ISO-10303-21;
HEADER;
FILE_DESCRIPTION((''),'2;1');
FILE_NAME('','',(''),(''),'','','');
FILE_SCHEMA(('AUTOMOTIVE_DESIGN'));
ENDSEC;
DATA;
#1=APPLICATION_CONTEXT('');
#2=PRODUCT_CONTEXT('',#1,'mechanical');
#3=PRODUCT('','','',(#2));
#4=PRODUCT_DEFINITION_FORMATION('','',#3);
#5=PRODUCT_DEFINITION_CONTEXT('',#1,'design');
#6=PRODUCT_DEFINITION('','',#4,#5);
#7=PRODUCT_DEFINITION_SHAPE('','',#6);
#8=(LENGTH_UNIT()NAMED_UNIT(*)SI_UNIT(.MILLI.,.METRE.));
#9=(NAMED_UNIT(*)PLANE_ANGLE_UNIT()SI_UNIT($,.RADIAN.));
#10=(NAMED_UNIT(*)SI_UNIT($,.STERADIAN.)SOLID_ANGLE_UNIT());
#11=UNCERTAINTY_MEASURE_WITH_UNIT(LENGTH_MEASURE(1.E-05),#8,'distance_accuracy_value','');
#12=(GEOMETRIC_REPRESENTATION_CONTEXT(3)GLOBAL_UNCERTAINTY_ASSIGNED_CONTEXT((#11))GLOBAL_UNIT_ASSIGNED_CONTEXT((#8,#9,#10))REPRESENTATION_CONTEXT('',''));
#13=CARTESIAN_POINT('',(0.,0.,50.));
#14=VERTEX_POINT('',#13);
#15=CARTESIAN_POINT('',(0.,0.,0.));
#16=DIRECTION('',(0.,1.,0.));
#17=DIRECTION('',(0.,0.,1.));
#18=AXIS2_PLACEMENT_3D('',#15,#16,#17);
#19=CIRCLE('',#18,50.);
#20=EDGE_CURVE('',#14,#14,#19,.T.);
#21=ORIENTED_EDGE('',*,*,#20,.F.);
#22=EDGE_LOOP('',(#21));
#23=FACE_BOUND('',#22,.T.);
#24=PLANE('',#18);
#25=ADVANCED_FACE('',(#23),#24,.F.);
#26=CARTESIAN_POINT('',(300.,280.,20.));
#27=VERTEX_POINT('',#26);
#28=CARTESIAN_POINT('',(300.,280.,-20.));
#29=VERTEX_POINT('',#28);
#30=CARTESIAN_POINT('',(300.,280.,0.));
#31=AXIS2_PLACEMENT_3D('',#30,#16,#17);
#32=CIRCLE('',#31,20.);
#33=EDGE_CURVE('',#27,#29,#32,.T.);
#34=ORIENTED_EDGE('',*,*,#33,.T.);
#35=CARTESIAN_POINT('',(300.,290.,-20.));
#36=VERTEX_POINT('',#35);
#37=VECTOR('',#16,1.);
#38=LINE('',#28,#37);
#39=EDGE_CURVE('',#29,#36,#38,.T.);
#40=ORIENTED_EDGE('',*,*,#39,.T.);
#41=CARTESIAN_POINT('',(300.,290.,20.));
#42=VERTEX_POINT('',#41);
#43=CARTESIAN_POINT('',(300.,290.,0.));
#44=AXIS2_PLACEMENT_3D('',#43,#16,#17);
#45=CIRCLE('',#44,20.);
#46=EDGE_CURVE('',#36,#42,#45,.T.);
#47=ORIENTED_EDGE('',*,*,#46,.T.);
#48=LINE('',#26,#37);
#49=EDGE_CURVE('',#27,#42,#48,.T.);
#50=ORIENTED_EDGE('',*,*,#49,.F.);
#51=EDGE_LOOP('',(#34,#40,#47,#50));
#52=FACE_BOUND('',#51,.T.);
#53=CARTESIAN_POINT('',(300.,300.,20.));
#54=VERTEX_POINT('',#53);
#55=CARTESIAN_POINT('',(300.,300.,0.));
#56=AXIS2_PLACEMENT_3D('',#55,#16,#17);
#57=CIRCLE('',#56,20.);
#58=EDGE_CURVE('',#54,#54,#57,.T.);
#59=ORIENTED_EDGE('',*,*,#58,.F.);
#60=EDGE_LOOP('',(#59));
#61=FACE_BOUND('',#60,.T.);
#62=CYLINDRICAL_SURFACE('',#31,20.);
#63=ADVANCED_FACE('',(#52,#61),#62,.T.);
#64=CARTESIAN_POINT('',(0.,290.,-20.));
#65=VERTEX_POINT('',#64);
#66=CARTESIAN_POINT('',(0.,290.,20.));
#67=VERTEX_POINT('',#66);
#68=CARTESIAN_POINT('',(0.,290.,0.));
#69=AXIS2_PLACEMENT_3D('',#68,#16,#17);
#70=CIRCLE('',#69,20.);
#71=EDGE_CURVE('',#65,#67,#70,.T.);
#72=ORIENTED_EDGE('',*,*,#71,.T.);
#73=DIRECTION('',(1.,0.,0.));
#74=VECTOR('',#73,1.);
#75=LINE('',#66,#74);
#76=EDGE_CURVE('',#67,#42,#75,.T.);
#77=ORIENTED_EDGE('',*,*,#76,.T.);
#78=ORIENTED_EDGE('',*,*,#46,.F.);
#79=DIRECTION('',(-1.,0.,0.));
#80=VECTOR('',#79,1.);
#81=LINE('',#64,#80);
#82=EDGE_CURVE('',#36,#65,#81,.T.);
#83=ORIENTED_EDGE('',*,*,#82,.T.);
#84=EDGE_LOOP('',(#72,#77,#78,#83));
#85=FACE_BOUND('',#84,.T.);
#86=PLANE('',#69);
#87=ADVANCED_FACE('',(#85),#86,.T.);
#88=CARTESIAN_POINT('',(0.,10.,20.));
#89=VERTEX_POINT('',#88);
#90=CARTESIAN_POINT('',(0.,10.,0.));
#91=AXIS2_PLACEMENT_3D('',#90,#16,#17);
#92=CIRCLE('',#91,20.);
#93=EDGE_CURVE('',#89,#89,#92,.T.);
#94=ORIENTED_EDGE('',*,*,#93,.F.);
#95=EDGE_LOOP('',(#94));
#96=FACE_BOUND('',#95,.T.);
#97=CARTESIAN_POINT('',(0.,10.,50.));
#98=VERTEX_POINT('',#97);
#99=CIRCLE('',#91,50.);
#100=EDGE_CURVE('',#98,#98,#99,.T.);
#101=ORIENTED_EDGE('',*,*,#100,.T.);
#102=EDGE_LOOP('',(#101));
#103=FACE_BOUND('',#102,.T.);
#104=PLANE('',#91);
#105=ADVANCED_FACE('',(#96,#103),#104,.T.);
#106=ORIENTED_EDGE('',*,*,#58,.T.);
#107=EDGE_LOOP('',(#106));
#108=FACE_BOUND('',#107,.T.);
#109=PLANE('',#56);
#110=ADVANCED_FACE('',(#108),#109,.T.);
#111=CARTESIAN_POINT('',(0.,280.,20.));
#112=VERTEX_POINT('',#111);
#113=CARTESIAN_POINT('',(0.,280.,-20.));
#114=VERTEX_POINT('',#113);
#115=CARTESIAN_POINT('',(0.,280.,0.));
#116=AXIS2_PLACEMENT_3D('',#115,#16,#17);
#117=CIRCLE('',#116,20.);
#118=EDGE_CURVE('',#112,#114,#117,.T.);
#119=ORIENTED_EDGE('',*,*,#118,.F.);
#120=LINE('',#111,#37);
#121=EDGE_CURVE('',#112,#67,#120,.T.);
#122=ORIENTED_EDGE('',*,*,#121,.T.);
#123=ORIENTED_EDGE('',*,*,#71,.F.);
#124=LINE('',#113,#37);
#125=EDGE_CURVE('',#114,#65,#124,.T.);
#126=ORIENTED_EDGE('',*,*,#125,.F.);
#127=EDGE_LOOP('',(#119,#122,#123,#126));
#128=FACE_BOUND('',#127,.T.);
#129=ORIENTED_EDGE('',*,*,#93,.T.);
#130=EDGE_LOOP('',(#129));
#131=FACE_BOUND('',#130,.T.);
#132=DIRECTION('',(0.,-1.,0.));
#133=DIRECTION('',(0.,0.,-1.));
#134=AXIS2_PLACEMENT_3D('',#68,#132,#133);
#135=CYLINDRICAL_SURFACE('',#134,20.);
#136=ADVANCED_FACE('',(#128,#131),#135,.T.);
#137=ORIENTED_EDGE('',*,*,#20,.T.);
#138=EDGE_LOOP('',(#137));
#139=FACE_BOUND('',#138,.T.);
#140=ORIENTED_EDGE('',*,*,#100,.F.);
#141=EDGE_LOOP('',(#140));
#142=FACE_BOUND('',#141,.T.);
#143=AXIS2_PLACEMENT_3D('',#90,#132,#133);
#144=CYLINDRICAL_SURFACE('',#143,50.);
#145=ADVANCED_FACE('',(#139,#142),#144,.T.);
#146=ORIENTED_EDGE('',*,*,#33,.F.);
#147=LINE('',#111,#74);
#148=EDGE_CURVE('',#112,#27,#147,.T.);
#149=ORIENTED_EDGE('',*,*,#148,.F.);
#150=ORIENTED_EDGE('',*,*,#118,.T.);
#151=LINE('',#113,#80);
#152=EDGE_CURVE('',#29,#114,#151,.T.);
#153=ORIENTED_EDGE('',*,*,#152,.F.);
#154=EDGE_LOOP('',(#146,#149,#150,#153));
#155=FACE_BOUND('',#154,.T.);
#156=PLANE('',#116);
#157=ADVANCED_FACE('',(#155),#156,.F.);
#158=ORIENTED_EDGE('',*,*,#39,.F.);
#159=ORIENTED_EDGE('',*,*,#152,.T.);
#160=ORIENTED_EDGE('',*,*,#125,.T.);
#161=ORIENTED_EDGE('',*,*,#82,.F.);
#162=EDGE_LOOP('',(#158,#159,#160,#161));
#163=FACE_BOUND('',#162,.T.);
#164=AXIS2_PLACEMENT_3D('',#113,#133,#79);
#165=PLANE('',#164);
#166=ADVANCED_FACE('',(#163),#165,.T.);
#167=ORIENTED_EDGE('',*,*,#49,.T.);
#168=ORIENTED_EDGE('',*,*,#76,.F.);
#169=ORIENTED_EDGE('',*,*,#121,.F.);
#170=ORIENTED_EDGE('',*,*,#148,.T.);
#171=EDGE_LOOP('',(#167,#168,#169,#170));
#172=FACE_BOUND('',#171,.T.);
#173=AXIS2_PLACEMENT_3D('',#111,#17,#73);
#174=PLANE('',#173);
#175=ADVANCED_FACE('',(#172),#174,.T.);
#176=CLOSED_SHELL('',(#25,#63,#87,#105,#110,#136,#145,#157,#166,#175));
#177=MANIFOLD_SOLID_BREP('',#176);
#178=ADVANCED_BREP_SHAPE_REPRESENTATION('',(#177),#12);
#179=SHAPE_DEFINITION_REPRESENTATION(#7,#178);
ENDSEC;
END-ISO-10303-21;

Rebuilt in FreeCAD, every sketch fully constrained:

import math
import FreeCAD as App
import Part
import Sketcher
from FreeCAD import Vector

doc = App.newDocument("Part")
params = doc.addObject("Spreadsheet::Sheet", "Params")
for row, (alias, value) in enumerate([
    ("sketch1_diameter", "100 mm"),
    ("pad1_length", "10 mm"),
    ("sketch2_diameter", "40 mm"),
    ("pad2_length", "280 mm"),
    ("sketch3_radius", "20 mm"),
    ("sketch3_width", "300 mm"),
    ("pad3_length", "10 mm"),
    ("sketch4_diameter", "40 mm"),
    ("pad4_length", "10 mm"),
    ("pad4_length2", "10 mm"),
], start=1):
    params.set(f"A{row}", alias)
    params.set(f"B{row}", "=" + value)
    params.setAlias(f"B{row}", alias)

body = doc.addObject("PartDesign::Body", "Body")

# Sketch on XZ plane
sketch1 = body.newObject("Sketcher::SketchObject", "Sketch")
sketch1.AttachmentSupport = (doc.getObject("XZ_Plane"), [""])
sketch1.MapMode = "FlatFace"
sketch1.addGeometry(Part.Circle(Vector(0, 0, 0), Vector(0, 0, 1), 50), False)
sketch1.addConstraint([
    Sketcher.Constraint("Coincident", 0, 3, -1, 1),
    Sketcher.Constraint("Diameter", 0, 100.0),
])
sketch1.setExpression("Constraints[1]", "Params.sketch1_diameter")
pad1 = body.newObject("PartDesign::Pad", "Pad")
pad1.Profile = sketch1
pad1.setExpression("Length", "Params.pad1_length")
pad1.Reversed = True

# Sketch on XZ plane
sketch2 = body.newObject("Sketcher::SketchObject", "Sketch001")
sketch2.AttachmentSupport = (doc.getObject("XZ_Plane"), [""])
sketch2.MapMode = "FlatFace"
sketch2.AttachmentOffset = App.Placement(Vector(0, 0, -10), App.Rotation())
sketch2.addGeometry(Part.Circle(Vector(0, 0, 0), Vector(0, 0, 1), 20), False)
sketch2.addConstraint([
    Sketcher.Constraint("Coincident", 0, 3, -1, 1),
    Sketcher.Constraint("Diameter", 0, 40.0),
])
sketch2.setExpression("Constraints[1]", "Params.sketch2_diameter")
pad2 = body.newObject("PartDesign::Pad", "Pad001")
pad2.Profile = sketch2
pad2.setExpression("Length", "Params.pad2_length")
pad2.Reversed = True

# Sketch on XZ plane
sketch3 = body.newObject("Sketcher::SketchObject", "Sketch002")
sketch3.AttachmentSupport = (doc.getObject("XZ_Plane"), [""])
sketch3.MapMode = "FlatFace"
sketch3.AttachmentOffset = App.Placement(Vector(0, 0, -280), App.Rotation())
sketch3.addGeometry([
    Part.LineSegment(Vector(300, -20, 0), Vector(0, -20, 0)),
    Part.ArcOfCircle(Part.Circle(Vector(0, 0, 0), Vector(0, 0, 1), 20), math.radians(90), math.radians(270)),
    Part.LineSegment(Vector(0, 20, 0), Vector(300, 20, 0)),
    Part.LineSegment(Vector(300, 20, 0), Vector(300, -20, 0)),
], False)
sketch3.addConstraint([
    Sketcher.Constraint("Tangent", 0, 2, 1, 2),
    Sketcher.Constraint("Tangent", 1, 1, 2, 1),
    Sketcher.Constraint("Coincident", 2, 2, 3, 1),
    Sketcher.Constraint("Coincident", 3, 2, 0, 1),
    Sketcher.Constraint("Horizontal", 0),
    Sketcher.Constraint("Horizontal", 2),
    Sketcher.Constraint("Vertical", 3),
    Sketcher.Constraint("Coincident", 1, 3, -1, 1),
    Sketcher.Constraint("Radius", 1, 20.0),
    Sketcher.Constraint("DistanceX", 0, 2, 0, 1, 300.0),
])
sketch3.setExpression("Constraints[8]", "Params.sketch3_radius")
sketch3.setExpression("Constraints[9]", "Params.sketch3_width")
pad3 = body.newObject("PartDesign::Pad", "Pad002")
pad3.Profile = sketch3
pad3.setExpression("Length", "Params.pad3_length")
pad3.Reversed = True

# Sketch on XZ plane
sketch4 = body.newObject("Sketcher::SketchObject", "Sketch003")
sketch4.AttachmentSupport = (doc.getObject("XZ_Plane"), [""])
sketch4.MapMode = "FlatFace"
sketch4.AttachmentOffset = App.Placement(Vector(0, 0, -290), App.Rotation())
sketch4.addGeometry(Part.Circle(Vector(300, 0, 0), Vector(0, 0, 1), 20), False)
sketch4.addConstraint([
    Sketcher.Constraint("PointOnObject", 0, 3, -1),
    Sketcher.Constraint("Diameter", 0, 40.0),
    Sketcher.Constraint("DistanceX", -1, 1, 0, 3, 300.0),
])
sketch4.setExpression("Constraints[1]", "Params.sketch4_diameter")
pad4 = body.newObject("PartDesign::Pad", "Pad003")
pad4.Profile = sketch4
pad4.Type = "TwoLengths"
pad4.setExpression("Length", "Params.pad4_length")
pad4.setExpression("Length2", "Params.pad4_length2")
pad4.Reversed = True

doc.recompute()
